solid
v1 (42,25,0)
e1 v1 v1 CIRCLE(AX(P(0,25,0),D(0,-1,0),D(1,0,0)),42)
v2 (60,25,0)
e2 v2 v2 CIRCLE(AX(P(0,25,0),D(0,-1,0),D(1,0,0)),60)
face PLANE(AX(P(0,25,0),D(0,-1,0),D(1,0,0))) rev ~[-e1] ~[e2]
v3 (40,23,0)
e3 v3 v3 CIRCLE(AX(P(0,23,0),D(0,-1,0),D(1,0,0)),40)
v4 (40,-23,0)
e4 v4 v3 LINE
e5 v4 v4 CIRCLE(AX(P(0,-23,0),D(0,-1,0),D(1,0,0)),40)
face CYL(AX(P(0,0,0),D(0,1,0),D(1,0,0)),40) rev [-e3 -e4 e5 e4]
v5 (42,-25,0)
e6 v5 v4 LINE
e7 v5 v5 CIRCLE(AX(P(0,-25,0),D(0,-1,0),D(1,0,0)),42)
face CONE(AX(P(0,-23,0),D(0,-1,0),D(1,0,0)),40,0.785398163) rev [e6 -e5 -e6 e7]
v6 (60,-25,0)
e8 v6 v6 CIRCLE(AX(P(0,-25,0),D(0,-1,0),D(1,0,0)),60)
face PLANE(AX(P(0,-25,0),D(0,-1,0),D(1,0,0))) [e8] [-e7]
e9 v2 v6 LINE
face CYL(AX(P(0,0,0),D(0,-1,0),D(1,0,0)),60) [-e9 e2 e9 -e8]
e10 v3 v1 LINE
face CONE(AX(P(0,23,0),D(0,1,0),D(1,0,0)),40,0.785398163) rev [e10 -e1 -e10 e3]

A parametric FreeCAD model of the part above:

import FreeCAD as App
import Part
import Sketcher
Q = App.Units.Quantity


def edges_at(feature, points):
    """Names of the edges that pass closest to the given points."""
    edges = feature.Shape.Edges
    near = lambda p: min(range(len(edges)), key=lambda i: edges[i].distToShape(Part.Vertex(*p))[0])
    return sorted({f"Edge{near(p) + 1}" for p in points})

doc = App.newDocument("Part")
body = doc.addObject("PartDesign::Body", "Body")

sketch1 = body.newObject("Sketcher::SketchObject", "Sketch")
sketch1.AttachmentSupport = (doc.getObject("XZ_Plane"), [""])
sketch1.MapMode = "FlatFace"
sketch1.addGeometry([
    Part.Circle(App.Vector(0, 0, 0), App.Vector(0, 0, 1), 60),
    Part.Circle(App.Vector(0, 0, 0), App.Vector(0, 0, 1), 40),
], False)
sketch1.addConstraint([
    Sketcher.Constraint("Coincident", 0, 3, -1, 1),
    Sketcher.Constraint("Coincident", 1, 3, -1, 1),
    Sketcher.Constraint("Diameter", 0, Q("120 mm")),
    Sketcher.Constraint("Diameter", 1, Q("80 mm")),
])
pad1 = body.newObject("PartDesign::Pad", "Pad")
pad1.Profile = sketch1
pad1.Length = 50
pad1.Midplane = True
doc.recompute()

chamfer = body.newObject("PartDesign::Chamfer", "Chamfer")
chamfer.Base = (pad1, edges_at(pad1, [(-40, -25, 0), (40, 0, 0), (-40, 25, 0)]))
chamfer.Size = 2

doc.recompute()
